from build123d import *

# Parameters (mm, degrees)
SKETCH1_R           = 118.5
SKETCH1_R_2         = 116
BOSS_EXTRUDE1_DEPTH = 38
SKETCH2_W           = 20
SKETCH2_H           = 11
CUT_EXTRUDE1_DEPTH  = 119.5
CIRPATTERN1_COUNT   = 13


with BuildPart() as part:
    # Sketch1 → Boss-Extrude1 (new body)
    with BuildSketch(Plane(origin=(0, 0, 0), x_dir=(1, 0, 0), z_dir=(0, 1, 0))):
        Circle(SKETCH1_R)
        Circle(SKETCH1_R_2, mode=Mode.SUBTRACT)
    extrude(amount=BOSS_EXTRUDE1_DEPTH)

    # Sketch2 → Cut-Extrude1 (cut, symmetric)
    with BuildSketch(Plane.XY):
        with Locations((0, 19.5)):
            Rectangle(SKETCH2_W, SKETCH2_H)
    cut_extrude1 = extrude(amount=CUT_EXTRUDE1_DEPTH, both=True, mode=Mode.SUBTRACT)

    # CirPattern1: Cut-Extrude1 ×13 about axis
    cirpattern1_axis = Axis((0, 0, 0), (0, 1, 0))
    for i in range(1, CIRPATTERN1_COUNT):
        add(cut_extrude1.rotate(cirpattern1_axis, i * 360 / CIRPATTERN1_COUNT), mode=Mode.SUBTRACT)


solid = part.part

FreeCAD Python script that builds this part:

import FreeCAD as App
import Part
import Sketcher
from FreeCAD import Vector


def add_polygon(sketch, points):
    """Adds a closed chain of lines whose ends are joined by coincident constraints."""
    first, n = sketch.GeometryCount, len(points)
    for a, b in zip(points, points[1:] + points[:1]):
        sketch.addGeometry(Part.LineSegment(App.Vector(*a, 0), App.Vector(*b, 0)), False)
    for i in range(n):
        sketch.addConstraint(Sketcher.Constraint("Coincident", first + i, 2, first + (i + 1) % n, 1))

doc = App.newDocument("Part")
body = doc.addObject("PartDesign::Body", "Body")

sketch1 = doc.addObject("Sketcher::SketchObject", "Sketch")
body.addObject(sketch1)
sketch1.AttachmentSupport = (doc.XZ_Plane, [""])
sketch1.MapMode = "FlatFace"
sketch1.addGeometry([
    Part.Circle(Vector(0, 0, 0), Vector(0, 0, 1), 118),
    Part.Circle(Vector(0, 0, 0), Vector(0, 0, 1), 116),
], False)
sketch1.addConstraint([
    Sketcher.Constraint("Coincident", 0, 3, -1, 1),
    Sketcher.Constraint("Coincident", 1, 3, -1, 1),
    Sketcher.Constraint("Diameter", 0, 237.0),
    Sketcher.Constraint("Diameter", 1, 232.0),
])
pad1 = doc.addObject("PartDesign::Pad", "Pad")
body.addObject(pad1)
pad1.Profile = sketch1
pad1.Length = 38
pad1.Reversed = True

sketch2 = doc.addObject("Sketcher::SketchObject", "Sketch001")
body.addObject(sketch2)
sketch2.AttachmentSupport = (doc.XY_Plane, [""])
sketch2.MapMode = "FlatFace"
add_polygon(sketch2, [(-10, 25), (-10, 14), (10, 14), (10, 25)])
sketch2.addConstraint([
    Sketcher.Constraint("Vertical", 0),
    Sketcher.Constraint("Horizontal", 1),
    Sketcher.Constraint("Vertical", 2),
    Sketcher.Constraint("Horizontal", 3),
    Sketcher.Constraint("DistanceX", 1, 1, 1, 2, 20.0),
    Sketcher.Constraint("DistanceY", 0, 2, 0, 1, 11.0),
    Sketcher.Constraint("DistanceX", 0, 2, -1, 1, 10.0),
    Sketcher.Constraint("DistanceY", -1, 1, 0, 2, 14.0),
])
pocket1 = doc.addObject("PartDesign::Pocket", "Pocket")
body.addObject(pocket1)
pocket1.Profile = sketch2
pocket1.Length = 239
pocket1.Midplane = True
doc.recompute()

polarpattern = doc.addObject("PartDesign::PolarPattern", "PolarPattern")
body.addObject(polarpattern)
polarpattern.Originals = [pocket1]
polarpattern.Axis = (doc.Y_Axis, [""])
polarpattern.Angle = 360
polarpattern.Occurrences = 13
body.Tip = polarpattern

doc.recompute()
